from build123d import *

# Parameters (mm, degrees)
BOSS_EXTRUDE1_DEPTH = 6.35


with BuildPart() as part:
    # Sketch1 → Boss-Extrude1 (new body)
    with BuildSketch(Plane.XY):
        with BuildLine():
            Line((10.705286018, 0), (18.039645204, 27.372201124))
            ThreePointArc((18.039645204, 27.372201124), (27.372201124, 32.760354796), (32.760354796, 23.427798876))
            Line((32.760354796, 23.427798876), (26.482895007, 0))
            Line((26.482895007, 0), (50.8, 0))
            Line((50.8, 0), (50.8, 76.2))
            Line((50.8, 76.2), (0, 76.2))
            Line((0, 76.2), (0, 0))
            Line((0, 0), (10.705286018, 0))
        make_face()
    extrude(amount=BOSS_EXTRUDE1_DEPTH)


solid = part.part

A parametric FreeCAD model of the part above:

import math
import FreeCAD as App
import Part
import Sketcher
from FreeCAD import Vector
Q = App.Units.Quantity

doc = App.newDocument("Part")
body = doc.addObject("PartDesign::Body", "Body")

# Sketch on XY plane
sketch1 = doc.addObject("Sketcher::SketchObject", "Sketch")
body.addObject(sketch1)
sketch1.AttachmentSupport = (doc.XY_Plane, [""])
sketch1.MapMode = "FlatFace"
sketch1.addGeometry(Part.LineSegment(Vector(11, 0, 0), Vector(18, 27, 0)), False)
sketch1.addGeometry(Part.ArcOfCircle(Part.Circle(Vector(25, 25, 0), Vector(0, 0, 1), 8), math.radians(-15), math.radians(165)), False)
sketch1.addGeometry(Part.LineSegment(Vector(33, 23, 0), Vector(26, 0, 0)), False)
sketch1.addGeometry(Part.LineSegment(Vector(26, 0, 0), Vector(51, 0, 0)), False)
sketch1.addGeometry(Part.LineSegment(Vector(51, 0, 0), Vector(51, 76, 0)), False)
sketch1.addGeometry(Part.LineSegment(Vector(51, 76, 0), Vector(0, 76, 0)), False)
sketch1.addGeometry(Part.LineSegment(Vector(0, 76, 0), Vector(0, 0, 0)), False)
sketch1.addGeometry(Part.LineSegment(Vector(0, 0, 0), Vector(11, 0, 0)), False)
sketch1.addConstraint(Sketcher.Constraint("Tangent", 0, 2, 1, 2))
sketch1.addConstraint(Sketcher.Constraint("Tangent", 1, 1, 2, 1))
sketch1.addConstraint(Sketcher.Constraint("Coincident", 2, 2, 3, 1))
sketch1.addConstraint(Sketcher.Constraint("Coincident", 3, 2, 4, 1))
sketch1.addConstraint(Sketcher.Constraint("Coincident", 4, 2, 5, 1))
sketch1.addConstraint(Sketcher.Constraint("Coincident", 5, 2, 6, 1))
sketch1.addConstraint(Sketcher.Constraint("Coincident", 6, 2, 7, 1))
sketch1.addConstraint(Sketcher.Constraint("Coincident", 7, 2, 0, 1))
sketch1.addConstraint(Sketcher.Constraint("Horizontal", 3))
sketch1.addConstraint(Sketcher.Constraint("Vertical", 4))
sketch1.addConstraint(Sketcher.Constraint("Horizontal", 5))
sketch1.addConstraint(Sketcher.Constraint("Vertical", 6))
sketch1.addConstraint(Sketcher.Constraint("Horizontal", 7))
sketch1.addConstraint(Sketcher.Constraint("Coincident", 6, 2, -1, 1))
sketch1.addConstraint(Sketcher.Constraint("PointOnObject", 2, 2, -1))
sketch1.addConstraint(Sketcher.Constraint("Parallel", 0, 2))
sketch1.addConstraint(Sketcher.Constraint("Radius", 1, Q("0.3 in")))
sketch1.addConstraint(Sketcher.Constraint("DistanceX", 5, 2, 5, 1, Q("2 in")))
sketch1.addConstraint(Sketcher.Constraint("DistanceY", 4, 1, 4, 2, Q("3 in")))
sketch1.addConstraint(Sketcher.Constraint("DistanceX", -1, 1, 1, 3, Q("1 in")))
sketch1.addConstraint(Sketcher.Constraint("DistanceY", -1, 1, 1, 3, Q("1 in")))
sketch1.addConstraint(Sketcher.Constraint("Angle", 0, Q("75 deg")))
pad1 = doc.addObject("PartDesign::Pad", "Pad")
body.addObject(pad1)
pad1.Profile = sketch1
pad1.Length = Q("0.25 in")

doc.recompute()
